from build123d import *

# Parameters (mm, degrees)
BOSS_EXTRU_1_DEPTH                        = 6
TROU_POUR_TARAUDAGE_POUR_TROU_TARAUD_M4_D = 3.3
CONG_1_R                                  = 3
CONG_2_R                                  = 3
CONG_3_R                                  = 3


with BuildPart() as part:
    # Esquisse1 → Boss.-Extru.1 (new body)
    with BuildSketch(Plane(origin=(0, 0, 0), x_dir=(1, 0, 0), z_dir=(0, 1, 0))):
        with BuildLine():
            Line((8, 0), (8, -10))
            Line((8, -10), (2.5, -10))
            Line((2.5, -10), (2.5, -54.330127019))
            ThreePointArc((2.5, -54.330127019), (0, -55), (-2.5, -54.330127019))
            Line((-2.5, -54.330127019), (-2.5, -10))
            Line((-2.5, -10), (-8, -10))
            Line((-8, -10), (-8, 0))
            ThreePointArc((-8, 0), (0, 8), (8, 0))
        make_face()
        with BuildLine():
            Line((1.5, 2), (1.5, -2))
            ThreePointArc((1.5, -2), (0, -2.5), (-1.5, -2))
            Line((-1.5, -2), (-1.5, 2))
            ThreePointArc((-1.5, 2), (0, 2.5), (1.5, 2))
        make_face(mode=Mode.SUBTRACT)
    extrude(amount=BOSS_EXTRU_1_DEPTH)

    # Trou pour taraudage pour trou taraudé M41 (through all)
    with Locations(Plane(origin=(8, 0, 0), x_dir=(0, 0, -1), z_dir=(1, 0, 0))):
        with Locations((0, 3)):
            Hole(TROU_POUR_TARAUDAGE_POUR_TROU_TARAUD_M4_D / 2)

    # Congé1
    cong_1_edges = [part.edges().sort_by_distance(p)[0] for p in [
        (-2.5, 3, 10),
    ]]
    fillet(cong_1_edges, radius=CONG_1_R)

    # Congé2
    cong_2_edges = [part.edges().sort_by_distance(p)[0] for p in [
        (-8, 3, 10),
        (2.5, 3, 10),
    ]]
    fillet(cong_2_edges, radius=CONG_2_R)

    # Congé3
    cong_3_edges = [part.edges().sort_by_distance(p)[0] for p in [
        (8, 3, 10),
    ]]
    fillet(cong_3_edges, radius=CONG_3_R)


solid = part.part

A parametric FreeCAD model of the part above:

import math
import FreeCAD as App
import Part
import Sketcher
from FreeCAD import Vector
Q = App.Units.Quantity


def edges_at(feature, points):
    """Names of the edges that pass closest to the given points."""
    edges = feature.Shape.Edges
    near = lambda p: min(range(len(edges)), key=lambda i: edges[i].distToShape(Part.Vertex(*p))[0])
    return sorted({f"Edge{near(p) + 1}" for p in points})

doc = App.newDocument("Part")
body = doc.addObject("PartDesign::Body", "Body")

# Sketch on XZ plane
sketch1 = body.newObject("Sketcher::SketchObject", "Sketch")
sketch1.AttachmentSupport = (doc.getObject("XZ_Plane"), [""])
sketch1.MapMode = "FlatFace"
sketch1.addGeometry([
    Part.LineSegment(Vector(8, 10, 0), Vector(8, 0, 0)),  # 0
    Part.ArcOfCircle(Part.Circle(Vector(0, 0, 0), Vector(0, 0, 1), 8), math.radians(180), math.radians(360)),  # 1
    Part.LineSegment(Vector(-8, 0, 0), Vector(-8, 10, 0)),  # 2
    Part.LineSegment(Vector(-8, 10, 0), Vector(-2.5, 10, 0)),  # 3
    Part.LineSegment(Vector(-2.5, 10, 0), Vector(-2.5, 54.330127, 0)),  # 4
    Part.ArcOfCircle(Part.Circle(Vector(0, 50, 0), Vector(0, 0, 1), 5), math.radians(60), math.radians(120)),  # 5
    Part.LineSegment(Vector(2.5, 54.330127, 0), Vector(2.5, 10, 0)),  # 6
    Part.LineSegment(Vector(2.5, 10, 0), Vector(8, 10, 0)),  # 7
    Part.LineSegment(Vector(1.5, -2, 0), Vector(1.5, 2, 0)),  # 8
    Part.ArcOfCircle(Part.Circle(Vector(0, 0, 0), Vector(0, 0, 1), 2.5), math.radians(53.130102), math.radians(126.869898)),  # 9
    Part.LineSegment(Vector(-1.5, 2, 0), Vector(-1.5, -2, 0)),  # 10
    Part.ArcOfCircle(Part.Circle(Vector(0, 0, 0), Vector(0, 0, 1), 2.5), math.radians(-126.869898), math.radians(-53.130102)),  # 11
], False)
sketch1.addConstraint([
    Sketcher.Constraint("Tangent", 0, 2, 1, 2),
    Sketcher.Constraint("Tangent", 1, 1, 2, 1),
    Sketcher.Constraint("Coincident", 2, 2, 3, 1),
    Sketcher.Constraint("Coincident", 3, 2, 4, 1),
    Sketcher.Constraint("Coincident", 4, 2, 5, 2),
    Sketcher.Constraint("Coincident", 5, 1, 6, 1),
    Sketcher.Constraint("Coincident", 6, 2, 7, 1),
    Sketcher.Constraint("Coincident", 7, 2, 0, 1),
    Sketcher.Constraint("Coincident", 8, 2, 9, 1),
    Sketcher.Constraint("Coincident", 9, 2, 10, 1),
    Sketcher.Constraint("Coincident", 10, 2, 11, 1),
    Sketcher.Constraint("Coincident", 11, 2, 8, 1),
    Sketcher.Constraint("Vertical", 0),
    Sketcher.Constraint("Vertical", 2),
    Sketcher.Constraint("Horizontal", 3),
    Sketcher.Constraint("Vertical", 4),
    Sketcher.Constraint("Vertical", 6),
    Sketcher.Constraint("Horizontal", 7),
    Sketcher.Constraint("Vertical", 8),
    Sketcher.Constraint("Vertical", 10),
    Sketcher.Constraint("Coincident", 1, 3, -1, 1),
    Sketcher.Constraint("Coincident", 9, 3, -1, 1),
    Sketcher.Constraint("Coincident", 11, 3, -1, 1),
    Sketcher.Constraint("Equal", 9, 11),
    Sketcher.Constraint("Symmetric", 4, 2, 5, 1, -2),
    Sketcher.Constraint("Horizontal", 3, 2, 6, 2),
    Sketcher.Constraint("Horizontal", 8, 2, 9, 2),
    Sketcher.Constraint("Radius", 1, Q("8 mm")),
    Sketcher.Constraint("Radius", 5, Q("5 mm")),
    Sketcher.Constraint("Radius", 9, Q("2.5 mm")),
    Sketcher.Constraint("DistanceY", 0, 2, 0, 1, Q("10 mm")),
    Sketcher.Constraint("DistanceY", 8, 1, 8, 2, Q("4 mm")),
    Sketcher.Constraint("DistanceX", 3, 1, 3, 2, Q("5.5 mm")),
    Sketcher.Constraint("DistanceY", -1, 1, 5, 3, Q("50 mm")),
])
pad1 = body.newObject("PartDesign::Pad", "Pad")
pad1.Profile = sketch1
pad1.Length = 6
pad1.Reversed = True

# Sketch on YZ plane
sketch2 = body.newObject("Sketcher::SketchObject", "Sketch001")
sketch2.AttachmentSupport = (doc.getObject("YZ_Plane"), [""])
sketch2.MapMode = "FlatFace"
sketch2.AttachmentOffset = App.Placement(Vector(0, 0, 8), App.Rotation())
sketch2.addGeometry(Part.Circle(Vector(3, 0, 0), Vector(0, 0, 1), 1.65), False)
sketch2.addConstraint([
    Sketcher.Constraint("PointOnObject", 0, 3, -1),
    Sketcher.Constraint("Diameter", 0, Q("3.3 mm")),
    Sketcher.Constraint("DistanceX", -1, 1, 0, 3, Q("3 mm")),
])
doc.recompute()
hole = body.newObject("PartDesign::Hole", "Hole")
hole.Profile = sketch2
hole.ThreadType = "None"
hole.Diameter = 3.3
hole.DepthType = "ThroughAll"
doc.recompute()

fillet = body.newObject("PartDesign::Fillet", "Fillet")
fillet.Base = (hole, edges_at(hole, [(-2.5, 3, 10)]))
fillet.Radius = 3
doc.recompute()

fillet2 = body.newObject("PartDesign::Fillet", "Fillet001")
fillet2.Base = (fillet, edges_at(fillet, [(-8, 3, 10), (2.5, 3, 10)]))
fillet2.Radius = 3
doc.recompute()

fillet3 = body.newObject("PartDesign::Fillet", "Fillet002")
fillet3.Base = (fillet2, edges_at(fillet2, [(8, 3, 10)]))
fillet3.Radius = 3

doc.recompute()
